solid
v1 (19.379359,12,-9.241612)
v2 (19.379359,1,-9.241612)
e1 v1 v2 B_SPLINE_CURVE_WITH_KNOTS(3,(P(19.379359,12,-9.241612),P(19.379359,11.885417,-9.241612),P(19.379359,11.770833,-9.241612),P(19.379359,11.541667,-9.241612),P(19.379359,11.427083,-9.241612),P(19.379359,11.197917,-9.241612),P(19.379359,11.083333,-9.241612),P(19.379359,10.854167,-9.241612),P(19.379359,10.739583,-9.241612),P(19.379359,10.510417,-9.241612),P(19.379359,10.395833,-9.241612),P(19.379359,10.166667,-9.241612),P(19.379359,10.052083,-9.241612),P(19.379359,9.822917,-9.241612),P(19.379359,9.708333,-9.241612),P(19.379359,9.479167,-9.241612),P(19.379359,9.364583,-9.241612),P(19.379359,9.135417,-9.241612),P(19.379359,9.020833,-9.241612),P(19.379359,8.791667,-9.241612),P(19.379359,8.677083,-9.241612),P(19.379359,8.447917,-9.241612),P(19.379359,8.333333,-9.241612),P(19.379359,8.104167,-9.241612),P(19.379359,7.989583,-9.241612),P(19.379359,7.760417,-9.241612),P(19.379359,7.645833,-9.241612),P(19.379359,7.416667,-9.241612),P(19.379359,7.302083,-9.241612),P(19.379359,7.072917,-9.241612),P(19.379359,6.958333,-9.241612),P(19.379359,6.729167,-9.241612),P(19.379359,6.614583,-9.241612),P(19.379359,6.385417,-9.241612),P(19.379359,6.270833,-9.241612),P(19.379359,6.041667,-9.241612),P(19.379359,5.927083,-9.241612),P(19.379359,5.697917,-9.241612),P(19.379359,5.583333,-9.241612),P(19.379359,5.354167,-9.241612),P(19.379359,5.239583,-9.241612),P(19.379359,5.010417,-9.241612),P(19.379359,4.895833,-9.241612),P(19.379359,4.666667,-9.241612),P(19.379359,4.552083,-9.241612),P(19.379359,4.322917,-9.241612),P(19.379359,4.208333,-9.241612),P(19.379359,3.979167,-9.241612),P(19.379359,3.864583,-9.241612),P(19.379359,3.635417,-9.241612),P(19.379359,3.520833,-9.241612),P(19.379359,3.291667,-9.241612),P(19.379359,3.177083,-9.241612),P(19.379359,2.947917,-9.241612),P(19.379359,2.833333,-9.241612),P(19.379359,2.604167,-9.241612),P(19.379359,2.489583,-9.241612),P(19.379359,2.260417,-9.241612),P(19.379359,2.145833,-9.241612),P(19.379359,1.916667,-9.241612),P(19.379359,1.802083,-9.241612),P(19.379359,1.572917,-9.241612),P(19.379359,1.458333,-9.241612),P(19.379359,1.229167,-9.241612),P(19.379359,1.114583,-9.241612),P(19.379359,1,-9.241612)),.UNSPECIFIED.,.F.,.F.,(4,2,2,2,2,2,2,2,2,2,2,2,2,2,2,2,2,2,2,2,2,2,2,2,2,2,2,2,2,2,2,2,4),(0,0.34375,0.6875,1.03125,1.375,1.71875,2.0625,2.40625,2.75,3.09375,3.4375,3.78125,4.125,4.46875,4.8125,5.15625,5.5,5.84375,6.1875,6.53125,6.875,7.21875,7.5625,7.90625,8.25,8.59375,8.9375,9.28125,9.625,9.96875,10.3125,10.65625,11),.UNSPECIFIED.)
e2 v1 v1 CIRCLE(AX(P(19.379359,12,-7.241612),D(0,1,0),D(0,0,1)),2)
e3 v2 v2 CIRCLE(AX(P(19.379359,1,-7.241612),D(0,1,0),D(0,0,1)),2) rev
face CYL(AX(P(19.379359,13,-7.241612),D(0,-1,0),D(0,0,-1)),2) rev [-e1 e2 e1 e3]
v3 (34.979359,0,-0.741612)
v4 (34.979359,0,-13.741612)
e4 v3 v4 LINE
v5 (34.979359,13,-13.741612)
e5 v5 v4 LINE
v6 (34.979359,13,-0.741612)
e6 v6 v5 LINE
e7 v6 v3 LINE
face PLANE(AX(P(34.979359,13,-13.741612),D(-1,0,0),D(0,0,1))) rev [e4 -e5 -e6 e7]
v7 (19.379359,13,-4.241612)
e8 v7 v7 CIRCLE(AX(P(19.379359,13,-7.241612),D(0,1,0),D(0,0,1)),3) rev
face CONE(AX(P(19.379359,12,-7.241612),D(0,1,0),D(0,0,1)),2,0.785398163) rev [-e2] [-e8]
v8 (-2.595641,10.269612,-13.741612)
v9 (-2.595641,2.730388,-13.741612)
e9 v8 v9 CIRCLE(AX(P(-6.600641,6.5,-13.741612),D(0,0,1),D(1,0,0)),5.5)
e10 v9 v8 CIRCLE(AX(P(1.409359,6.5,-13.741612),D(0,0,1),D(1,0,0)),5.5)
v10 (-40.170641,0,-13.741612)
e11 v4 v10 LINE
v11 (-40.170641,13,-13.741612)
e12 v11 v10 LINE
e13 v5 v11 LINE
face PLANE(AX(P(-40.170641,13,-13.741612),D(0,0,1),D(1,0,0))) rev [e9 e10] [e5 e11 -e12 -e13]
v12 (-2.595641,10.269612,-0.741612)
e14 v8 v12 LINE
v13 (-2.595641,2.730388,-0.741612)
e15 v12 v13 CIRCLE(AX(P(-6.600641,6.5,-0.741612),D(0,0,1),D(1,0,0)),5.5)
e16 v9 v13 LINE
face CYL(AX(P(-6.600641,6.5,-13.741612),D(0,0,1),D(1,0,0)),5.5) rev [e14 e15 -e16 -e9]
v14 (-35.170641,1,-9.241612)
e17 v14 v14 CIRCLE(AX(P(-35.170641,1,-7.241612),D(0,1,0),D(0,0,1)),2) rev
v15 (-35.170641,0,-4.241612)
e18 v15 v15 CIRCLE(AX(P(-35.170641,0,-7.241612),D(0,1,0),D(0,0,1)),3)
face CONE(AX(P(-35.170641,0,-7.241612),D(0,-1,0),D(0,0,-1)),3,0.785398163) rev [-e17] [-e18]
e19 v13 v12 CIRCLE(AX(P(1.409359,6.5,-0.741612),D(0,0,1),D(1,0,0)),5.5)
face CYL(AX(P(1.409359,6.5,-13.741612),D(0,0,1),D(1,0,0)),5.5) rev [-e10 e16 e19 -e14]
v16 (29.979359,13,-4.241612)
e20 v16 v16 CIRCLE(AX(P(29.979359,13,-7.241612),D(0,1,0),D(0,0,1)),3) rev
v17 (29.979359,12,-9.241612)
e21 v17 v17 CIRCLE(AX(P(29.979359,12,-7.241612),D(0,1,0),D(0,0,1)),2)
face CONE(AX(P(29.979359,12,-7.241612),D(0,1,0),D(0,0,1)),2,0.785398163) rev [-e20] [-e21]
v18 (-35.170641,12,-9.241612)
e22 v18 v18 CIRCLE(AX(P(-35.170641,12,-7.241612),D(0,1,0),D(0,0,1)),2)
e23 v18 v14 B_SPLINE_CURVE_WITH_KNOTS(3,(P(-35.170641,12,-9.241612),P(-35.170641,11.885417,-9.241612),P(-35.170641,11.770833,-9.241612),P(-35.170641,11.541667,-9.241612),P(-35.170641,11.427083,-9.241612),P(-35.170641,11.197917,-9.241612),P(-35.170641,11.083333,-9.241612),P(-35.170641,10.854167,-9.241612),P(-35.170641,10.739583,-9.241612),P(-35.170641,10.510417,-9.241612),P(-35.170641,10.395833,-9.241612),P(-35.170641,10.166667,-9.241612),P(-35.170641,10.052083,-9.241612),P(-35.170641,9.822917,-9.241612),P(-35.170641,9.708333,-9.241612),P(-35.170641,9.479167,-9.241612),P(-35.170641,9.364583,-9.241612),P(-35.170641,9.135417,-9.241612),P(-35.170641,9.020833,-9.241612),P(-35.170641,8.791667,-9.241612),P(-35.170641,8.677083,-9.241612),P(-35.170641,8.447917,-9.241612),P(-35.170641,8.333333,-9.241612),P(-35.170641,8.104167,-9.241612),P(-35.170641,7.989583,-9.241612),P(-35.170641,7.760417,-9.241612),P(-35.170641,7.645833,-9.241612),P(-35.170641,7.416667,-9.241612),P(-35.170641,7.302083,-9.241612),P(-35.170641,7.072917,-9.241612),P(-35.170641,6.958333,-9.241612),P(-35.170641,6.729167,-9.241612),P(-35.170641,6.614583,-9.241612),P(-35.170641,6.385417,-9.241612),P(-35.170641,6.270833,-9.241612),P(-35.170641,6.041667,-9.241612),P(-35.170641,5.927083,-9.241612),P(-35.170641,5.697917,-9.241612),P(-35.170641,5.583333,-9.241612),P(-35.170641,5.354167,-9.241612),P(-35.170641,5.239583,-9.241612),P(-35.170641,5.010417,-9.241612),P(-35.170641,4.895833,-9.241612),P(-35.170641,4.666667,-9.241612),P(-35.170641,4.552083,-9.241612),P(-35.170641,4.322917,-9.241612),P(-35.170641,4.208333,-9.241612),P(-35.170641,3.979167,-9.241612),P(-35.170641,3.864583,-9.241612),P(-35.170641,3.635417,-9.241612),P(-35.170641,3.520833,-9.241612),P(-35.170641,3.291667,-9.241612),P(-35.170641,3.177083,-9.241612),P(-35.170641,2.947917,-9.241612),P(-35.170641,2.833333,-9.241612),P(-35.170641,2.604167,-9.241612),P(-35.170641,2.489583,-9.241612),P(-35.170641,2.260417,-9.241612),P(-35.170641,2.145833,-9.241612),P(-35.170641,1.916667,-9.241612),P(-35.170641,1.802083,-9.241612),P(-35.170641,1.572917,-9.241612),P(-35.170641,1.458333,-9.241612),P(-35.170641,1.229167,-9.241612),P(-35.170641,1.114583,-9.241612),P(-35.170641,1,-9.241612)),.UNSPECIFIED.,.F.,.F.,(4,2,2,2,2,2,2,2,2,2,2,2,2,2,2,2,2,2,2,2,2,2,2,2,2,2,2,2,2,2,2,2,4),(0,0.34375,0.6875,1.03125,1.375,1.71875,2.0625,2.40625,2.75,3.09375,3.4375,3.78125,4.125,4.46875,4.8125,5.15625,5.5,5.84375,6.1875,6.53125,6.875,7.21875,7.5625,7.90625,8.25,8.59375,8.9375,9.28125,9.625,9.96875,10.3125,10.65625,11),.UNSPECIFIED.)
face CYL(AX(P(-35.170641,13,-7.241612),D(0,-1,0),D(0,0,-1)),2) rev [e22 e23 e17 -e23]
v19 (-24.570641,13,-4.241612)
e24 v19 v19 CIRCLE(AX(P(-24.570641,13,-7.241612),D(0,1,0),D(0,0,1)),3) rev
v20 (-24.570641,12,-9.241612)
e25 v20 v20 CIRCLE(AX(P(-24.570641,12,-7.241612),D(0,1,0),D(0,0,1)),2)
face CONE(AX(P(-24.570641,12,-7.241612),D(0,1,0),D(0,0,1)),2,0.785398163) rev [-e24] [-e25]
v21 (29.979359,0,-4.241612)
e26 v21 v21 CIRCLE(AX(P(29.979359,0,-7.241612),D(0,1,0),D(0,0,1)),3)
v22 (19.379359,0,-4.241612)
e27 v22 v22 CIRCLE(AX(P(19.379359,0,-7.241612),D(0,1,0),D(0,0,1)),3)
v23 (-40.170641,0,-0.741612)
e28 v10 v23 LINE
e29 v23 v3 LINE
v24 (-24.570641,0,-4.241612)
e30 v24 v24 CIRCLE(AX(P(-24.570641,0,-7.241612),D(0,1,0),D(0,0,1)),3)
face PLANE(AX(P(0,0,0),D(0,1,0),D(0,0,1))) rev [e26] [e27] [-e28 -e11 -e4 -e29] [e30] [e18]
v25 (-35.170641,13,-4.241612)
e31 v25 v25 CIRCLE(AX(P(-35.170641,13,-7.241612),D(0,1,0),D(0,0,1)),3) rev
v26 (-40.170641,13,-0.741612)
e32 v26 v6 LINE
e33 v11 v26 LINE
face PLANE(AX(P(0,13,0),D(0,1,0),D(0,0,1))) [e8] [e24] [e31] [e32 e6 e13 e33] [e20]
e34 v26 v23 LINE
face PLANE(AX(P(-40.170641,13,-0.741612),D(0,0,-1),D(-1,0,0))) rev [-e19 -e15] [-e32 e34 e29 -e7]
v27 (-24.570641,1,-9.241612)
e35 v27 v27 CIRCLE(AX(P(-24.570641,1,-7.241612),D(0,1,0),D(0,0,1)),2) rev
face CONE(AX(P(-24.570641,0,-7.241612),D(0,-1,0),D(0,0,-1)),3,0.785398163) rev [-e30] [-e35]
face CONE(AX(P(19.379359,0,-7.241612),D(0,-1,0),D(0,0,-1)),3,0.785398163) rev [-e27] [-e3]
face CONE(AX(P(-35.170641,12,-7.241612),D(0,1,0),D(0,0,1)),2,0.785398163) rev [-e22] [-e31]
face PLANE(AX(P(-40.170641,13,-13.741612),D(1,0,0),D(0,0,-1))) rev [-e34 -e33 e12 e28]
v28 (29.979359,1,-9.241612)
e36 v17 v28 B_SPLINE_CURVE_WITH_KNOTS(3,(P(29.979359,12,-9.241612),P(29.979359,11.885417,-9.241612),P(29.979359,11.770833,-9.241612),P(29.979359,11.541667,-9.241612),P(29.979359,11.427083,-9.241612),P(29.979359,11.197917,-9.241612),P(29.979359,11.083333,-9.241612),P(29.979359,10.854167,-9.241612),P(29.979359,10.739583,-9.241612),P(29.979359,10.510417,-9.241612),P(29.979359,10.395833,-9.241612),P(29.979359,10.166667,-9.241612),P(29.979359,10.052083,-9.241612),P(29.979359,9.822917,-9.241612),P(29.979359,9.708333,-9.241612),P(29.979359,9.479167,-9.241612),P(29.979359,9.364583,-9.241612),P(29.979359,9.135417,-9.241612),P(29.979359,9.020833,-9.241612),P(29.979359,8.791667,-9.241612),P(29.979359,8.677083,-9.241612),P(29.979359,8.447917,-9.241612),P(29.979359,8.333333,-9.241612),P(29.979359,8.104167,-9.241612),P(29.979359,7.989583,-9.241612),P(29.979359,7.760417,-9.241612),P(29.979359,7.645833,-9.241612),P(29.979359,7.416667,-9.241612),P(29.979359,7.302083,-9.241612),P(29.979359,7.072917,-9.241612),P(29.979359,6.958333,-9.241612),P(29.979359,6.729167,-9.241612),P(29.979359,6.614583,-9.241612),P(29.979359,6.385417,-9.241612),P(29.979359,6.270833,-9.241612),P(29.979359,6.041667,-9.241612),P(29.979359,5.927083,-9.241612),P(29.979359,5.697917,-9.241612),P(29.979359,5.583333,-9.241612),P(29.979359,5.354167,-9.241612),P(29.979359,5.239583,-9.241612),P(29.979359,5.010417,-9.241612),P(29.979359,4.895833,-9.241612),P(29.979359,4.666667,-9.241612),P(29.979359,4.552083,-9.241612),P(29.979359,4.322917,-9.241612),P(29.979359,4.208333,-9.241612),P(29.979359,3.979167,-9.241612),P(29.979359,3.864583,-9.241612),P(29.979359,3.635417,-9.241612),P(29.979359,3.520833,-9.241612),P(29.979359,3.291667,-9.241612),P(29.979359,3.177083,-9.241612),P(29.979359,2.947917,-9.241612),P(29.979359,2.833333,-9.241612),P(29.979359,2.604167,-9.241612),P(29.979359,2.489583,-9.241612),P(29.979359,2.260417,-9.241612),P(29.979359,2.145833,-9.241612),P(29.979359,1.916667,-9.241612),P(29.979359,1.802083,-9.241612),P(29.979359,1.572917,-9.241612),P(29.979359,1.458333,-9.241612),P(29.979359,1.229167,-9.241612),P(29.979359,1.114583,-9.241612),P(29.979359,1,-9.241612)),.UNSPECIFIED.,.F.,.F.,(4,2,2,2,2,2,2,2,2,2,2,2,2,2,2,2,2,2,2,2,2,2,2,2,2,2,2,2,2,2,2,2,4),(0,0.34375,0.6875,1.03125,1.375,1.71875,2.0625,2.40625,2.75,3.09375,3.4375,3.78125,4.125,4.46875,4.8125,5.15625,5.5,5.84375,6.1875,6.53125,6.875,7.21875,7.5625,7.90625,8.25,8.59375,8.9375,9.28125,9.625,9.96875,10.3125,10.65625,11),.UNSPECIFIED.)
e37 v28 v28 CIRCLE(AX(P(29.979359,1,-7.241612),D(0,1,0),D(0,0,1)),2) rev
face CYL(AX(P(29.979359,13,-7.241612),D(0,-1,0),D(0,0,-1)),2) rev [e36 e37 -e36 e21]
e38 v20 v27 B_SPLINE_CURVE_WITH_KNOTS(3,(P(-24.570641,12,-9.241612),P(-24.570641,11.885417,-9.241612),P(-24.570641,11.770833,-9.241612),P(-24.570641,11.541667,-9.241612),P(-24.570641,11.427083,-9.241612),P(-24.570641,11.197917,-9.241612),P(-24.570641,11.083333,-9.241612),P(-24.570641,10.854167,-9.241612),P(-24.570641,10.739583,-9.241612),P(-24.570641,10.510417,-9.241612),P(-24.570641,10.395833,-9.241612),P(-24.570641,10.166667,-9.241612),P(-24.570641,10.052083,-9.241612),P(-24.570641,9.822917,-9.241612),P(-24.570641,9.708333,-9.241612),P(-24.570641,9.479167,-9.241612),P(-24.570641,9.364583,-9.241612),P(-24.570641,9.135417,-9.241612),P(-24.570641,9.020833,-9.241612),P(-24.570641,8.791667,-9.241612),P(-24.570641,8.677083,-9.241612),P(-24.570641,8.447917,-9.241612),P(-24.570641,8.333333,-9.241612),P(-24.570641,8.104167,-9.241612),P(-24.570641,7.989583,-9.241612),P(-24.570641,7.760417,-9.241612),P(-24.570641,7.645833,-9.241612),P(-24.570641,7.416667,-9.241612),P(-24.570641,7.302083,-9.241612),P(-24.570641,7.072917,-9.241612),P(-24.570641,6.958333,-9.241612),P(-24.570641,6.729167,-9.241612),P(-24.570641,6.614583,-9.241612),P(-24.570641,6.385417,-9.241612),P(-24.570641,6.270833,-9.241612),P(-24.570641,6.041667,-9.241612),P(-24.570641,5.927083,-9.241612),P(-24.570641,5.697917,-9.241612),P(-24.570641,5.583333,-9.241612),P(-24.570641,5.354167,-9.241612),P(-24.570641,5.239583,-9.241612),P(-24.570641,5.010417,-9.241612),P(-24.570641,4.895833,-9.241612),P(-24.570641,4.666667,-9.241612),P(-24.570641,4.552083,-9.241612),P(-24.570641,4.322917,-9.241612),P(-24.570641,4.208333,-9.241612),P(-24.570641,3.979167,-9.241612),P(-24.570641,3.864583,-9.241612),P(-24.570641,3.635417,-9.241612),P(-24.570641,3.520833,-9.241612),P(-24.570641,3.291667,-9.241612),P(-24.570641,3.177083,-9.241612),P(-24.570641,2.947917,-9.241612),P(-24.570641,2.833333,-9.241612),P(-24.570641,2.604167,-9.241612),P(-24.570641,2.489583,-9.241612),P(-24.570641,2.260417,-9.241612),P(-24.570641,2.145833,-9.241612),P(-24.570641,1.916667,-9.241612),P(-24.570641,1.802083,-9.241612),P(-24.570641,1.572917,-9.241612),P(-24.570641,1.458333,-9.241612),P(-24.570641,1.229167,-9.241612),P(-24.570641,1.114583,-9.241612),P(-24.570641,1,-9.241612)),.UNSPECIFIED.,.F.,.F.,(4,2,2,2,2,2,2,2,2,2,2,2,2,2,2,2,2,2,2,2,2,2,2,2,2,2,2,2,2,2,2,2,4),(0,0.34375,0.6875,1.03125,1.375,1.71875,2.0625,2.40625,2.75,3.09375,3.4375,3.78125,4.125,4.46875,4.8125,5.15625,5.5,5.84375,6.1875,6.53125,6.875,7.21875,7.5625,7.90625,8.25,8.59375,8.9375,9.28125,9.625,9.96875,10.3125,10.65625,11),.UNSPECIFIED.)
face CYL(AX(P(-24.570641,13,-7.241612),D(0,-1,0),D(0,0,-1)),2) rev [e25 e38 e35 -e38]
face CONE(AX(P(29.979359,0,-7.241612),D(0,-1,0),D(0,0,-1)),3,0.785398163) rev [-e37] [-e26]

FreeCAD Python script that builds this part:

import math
import FreeCAD as App
import Part
import Sketcher
Q = App.Units.Quantity


def edges_at(feature, points):
    """Names of the edges that pass closest to the given points."""
    edges = feature.Shape.Edges
    near = lambda p: min(range(len(edges)), key=lambda i: edges[i].distToShape(Part.Vertex(*p))[0])
    return sorted({f"Edge{near(p) + 1}" for p in points})


def add_polygon(sketch, points):
    """Adds a closed chain of lines whose ends are joined by coincident constraints."""
    first, n = sketch.GeometryCount, len(points)
    for a, b in zip(points, points[1:] + points[:1]):
        sketch.addGeometry(Part.LineSegment(App.Vector(*a, 0), App.Vector(*b, 0)), False)
    for i in range(n):
        sketch.addConstraint(Sketcher.Constraint("Coincident", first + i, 2, first + (i + 1) % n, 1))

doc = App.newDocument("Part")
body = doc.addObject("PartDesign::Body", "Body")

sketch1 = body.newObject("Sketcher::SketchObject", "Sketch")
sketch1.AttachmentSupport = (doc.getObject("XZ_Plane"), [""])
sketch1.MapMode = "FlatFace"
add_polygon(sketch1, [(-40.2, -13.7), (-40.2, -0.7), (35, -0.7), (35, -13.7)])
sketch1.addGeometry(Part.Circle(App.Vector(-35.2, -7.2, 0), App.Vector(0, 0, 1), 2), False)
sketch1.addGeometry(Part.Circle(App.Vector(-24.6, -7.2, 0), App.Vector(0, 0, 1), 2), False)
sketch1.addGeometry(Part.Circle(App.Vector(19.4, -7.2, 0), App.Vector(0, 0, 1), 2), False)
sketch1.addGeometry(Part.Circle(App.Vector(30, -7.2, 0), App.Vector(0, 0, 1), 2), False)
sketch1.addConstraint(Sketcher.Constraint("Vertical", 0))
sketch1.addConstraint(Sketcher.Constraint("Horizontal", 1))
sketch1.addConstraint(Sketcher.Constraint("Vertical", 2))
sketch1.addConstraint(Sketcher.Constraint("Horizontal", 3))
sketch1.addConstraint(Sketcher.Constraint("Equal", 4, 5))
sketch1.addConstraint(Sketcher.Constraint("Equal", 5, 6))
sketch1.addConstraint(Sketcher.Constraint("Equal", 6, 7))
sketch1.addConstraint(Sketcher.Constraint("Horizontal", 4, 3, 5, 3))
sketch1.addConstraint(Sketcher.Constraint("Horizontal", 5, 3, 6, 3))
sketch1.addConstraint(Sketcher.Constraint("Horizontal", 6, 3, 7, 3))
sketch1.addConstraint(Sketcher.Constraint("Diameter", 4, Q("4 mm")))
sketch1.addConstraint(Sketcher.Constraint("DistanceY", 0, 1, 0, 2, Q("13 mm")))
sketch1.addConstraint(Sketcher.Constraint("DistanceX", 0, 2, 4, 3, Q("5 mm")))
sketch1.addConstraint(Sketcher.Constraint("DistanceX", 7, 3, 1, 2, Q("5 mm")))
sketch1.addConstraint(Sketcher.Constraint("DistanceX", 1, 1, 1, 2, Q("75.15 mm")))
sketch1.addConstraint(Sketcher.Constraint("DistanceX", 4, 3, 5, 3, Q("10.6 mm")))
sketch1.addConstraint(Sketcher.Constraint("DistanceX", 6, 3, 7, 3, Q("10.6 mm")))
sketch1.addConstraint(Sketcher.Constraint("DistanceY", 4, 3, 0, 2, Q("6.5 mm")))
sketch1.addConstraint(Sketcher.Constraint("DistanceX", 4, 3, -1, 1, Q("35.170641 mm")))
sketch1.addConstraint(Sketcher.Constraint("DistanceY", 4, 3, -1, 1, Q("7.241612 mm")))
pad1 = body.newObject("PartDesign::Pad", "Pad")
pad1.Profile = sketch1
pad1.Length = 13
pad1.Reversed = True
doc.recompute()

chamfer = body.newObject("PartDesign::Chamfer", "Chamfer")
chamfer.Base = (pad1, edges_at(pad1, [(19.379, 0, -5.242)]))
chamfer.Size = 1
doc.recompute()

chamfer2 = body.newObject("PartDesign::Chamfer", "Chamfer001")
chamfer2.Base = (chamfer, edges_at(chamfer, [
    (29.979, 0, -5.242),
    (29.979, 13, -5.242),
    (19.379, 13, -5.242),
    (-35.171, 0, -5.242),
    (-35.171, 13, -5.242),
    (-24.571, 0, -5.242),
    (-24.571, 13, -5.242),
]))
chamfer2.Size = 1

sketch2 = body.newObject("Sketcher::SketchObject", "Sketch001")
sketch2.AttachmentSupport = (doc.getObject("XY_Plane"), [""])
sketch2.MapMode = "FlatFace"
sketch2.AttachmentOffset = App.Placement(App.Vector(0, 0, -0.741612), App.Rotation())
sketch2.addGeometry(Part.ArcOfCircle(Part.Circle(App.Vector(1, 6, 0), App.Vector(0, 0, 1), 6), math.radians(-137), math.radians(0)), False)
sketch2.addGeometry(Part.ArcOfCircle(Part.Circle(App.Vector(1, 6, 0), App.Vector(0, 0, 1), 6), math.radians(0), math.radians(137)), False)
sketch2.addGeometry(Part.ArcOfCircle(Part.Circle(App.Vector(-7, 6, 0), App.Vector(0, 0, 1), 6), math.radians(43), math.radians(180)), False)
sketch2.addGeometry(Part.ArcOfCircle(Part.Circle(App.Vector(-7, 6, 0), App.Vector(0, 0, 1), 6), math.radians(180), math.radians(317)), False)
sketch2.addConstraint(Sketcher.Constraint("Tangent", 0, 2, 1, 1))
sketch2.addConstraint(Sketcher.Constraint("Coincident", 1, 2, 2, 1))
sketch2.addConstraint(Sketcher.Constraint("Tangent", 2, 2, 3, 1))
sketch2.addConstraint(Sketcher.Constraint("Coincident", 3, 2, 0, 1))
sketch2.addConstraint(Sketcher.Constraint("Equal", 0, 1))
sketch2.addConstraint(Sketcher.Constraint("Equal", 1, 2))
sketch2.addConstraint(Sketcher.Constraint("Equal", 2, 3))
sketch2.addConstraint(Sketcher.Constraint("Horizontal", 1, 3, 2, 3))
sketch2.addConstraint(Sketcher.Constraint("Horizontal", 3, 3, 0, 2))
sketch2.addConstraint(Sketcher.Constraint("Horizontal", 0, 2, 2, 2))
sketch2.addConstraint(Sketcher.Constraint("Radius", 0, Q("5.5 mm")))
sketch2.addConstraint(Sketcher.Constraint("DistanceY", -1, 1, 0, 3, Q("6.5 mm")))
sketch2.addConstraint(Sketcher.Constraint("DistanceX", 2, 3, 0, 3, Q("8.01 mm")))
sketch2.addConstraint(Sketcher.Constraint("DistanceX", -1, 1, 0, 3, Q("1.409359 mm")))
pocket1 = body.newObject("PartDesign::Pocket", "Pocket")
pocket1.Profile = sketch2
pocket1.Length = 13

doc.recompute()
